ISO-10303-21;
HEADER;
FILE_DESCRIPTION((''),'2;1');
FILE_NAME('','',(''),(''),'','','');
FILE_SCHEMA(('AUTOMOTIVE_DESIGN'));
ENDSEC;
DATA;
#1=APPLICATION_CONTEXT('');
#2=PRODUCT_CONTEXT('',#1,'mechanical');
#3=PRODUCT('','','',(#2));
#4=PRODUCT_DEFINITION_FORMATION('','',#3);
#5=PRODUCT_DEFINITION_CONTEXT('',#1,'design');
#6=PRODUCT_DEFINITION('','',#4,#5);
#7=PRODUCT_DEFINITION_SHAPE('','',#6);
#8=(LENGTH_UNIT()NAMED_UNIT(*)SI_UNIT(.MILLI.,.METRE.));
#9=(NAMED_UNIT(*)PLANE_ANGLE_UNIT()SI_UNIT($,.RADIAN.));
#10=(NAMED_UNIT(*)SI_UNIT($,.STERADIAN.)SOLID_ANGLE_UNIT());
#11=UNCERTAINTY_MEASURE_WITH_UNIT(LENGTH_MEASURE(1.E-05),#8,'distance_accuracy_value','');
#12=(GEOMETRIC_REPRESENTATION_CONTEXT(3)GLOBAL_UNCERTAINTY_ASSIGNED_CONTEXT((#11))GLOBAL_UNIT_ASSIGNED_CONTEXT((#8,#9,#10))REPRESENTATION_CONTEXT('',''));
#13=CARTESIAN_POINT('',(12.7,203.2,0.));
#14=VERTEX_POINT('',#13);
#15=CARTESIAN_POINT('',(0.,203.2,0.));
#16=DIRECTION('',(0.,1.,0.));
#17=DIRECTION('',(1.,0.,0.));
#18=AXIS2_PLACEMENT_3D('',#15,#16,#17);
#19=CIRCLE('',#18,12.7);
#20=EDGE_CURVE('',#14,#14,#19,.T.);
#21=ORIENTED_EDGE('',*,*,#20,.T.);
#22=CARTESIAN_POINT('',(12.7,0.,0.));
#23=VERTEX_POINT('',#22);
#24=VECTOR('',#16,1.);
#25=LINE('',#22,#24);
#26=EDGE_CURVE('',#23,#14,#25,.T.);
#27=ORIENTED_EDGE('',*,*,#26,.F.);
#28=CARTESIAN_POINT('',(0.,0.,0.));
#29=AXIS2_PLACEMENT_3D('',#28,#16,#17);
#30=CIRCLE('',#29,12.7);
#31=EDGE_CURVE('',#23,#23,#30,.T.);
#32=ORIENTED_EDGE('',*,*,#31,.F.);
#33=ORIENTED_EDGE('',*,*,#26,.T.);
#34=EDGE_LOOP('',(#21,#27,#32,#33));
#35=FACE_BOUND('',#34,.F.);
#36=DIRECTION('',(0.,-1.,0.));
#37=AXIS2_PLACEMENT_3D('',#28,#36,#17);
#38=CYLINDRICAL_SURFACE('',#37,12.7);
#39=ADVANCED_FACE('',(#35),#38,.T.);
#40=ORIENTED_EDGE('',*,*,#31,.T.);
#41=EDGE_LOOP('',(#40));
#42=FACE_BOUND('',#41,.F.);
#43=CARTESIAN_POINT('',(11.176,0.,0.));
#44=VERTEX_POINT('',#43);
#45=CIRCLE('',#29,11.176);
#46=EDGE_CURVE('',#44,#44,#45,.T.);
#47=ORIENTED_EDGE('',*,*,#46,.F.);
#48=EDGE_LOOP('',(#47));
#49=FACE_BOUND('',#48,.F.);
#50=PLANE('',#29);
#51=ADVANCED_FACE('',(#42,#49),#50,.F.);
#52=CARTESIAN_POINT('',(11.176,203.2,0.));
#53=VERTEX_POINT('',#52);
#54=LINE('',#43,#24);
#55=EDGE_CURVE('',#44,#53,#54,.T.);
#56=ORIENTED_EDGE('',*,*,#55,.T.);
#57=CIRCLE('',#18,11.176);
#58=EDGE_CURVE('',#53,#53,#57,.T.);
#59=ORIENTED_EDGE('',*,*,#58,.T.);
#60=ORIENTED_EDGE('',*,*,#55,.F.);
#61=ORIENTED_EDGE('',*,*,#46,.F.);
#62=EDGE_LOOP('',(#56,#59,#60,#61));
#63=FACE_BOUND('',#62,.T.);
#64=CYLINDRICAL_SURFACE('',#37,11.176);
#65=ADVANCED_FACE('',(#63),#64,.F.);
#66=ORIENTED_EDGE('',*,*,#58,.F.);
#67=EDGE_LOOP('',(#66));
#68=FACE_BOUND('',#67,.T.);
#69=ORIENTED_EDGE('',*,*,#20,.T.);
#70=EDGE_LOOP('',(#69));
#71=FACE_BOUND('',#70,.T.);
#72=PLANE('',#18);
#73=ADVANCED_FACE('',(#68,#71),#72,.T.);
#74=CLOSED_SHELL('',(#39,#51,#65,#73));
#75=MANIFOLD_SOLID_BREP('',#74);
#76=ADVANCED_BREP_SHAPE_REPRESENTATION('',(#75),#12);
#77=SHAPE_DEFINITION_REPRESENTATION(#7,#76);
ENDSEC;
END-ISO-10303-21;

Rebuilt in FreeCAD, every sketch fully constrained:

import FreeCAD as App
import Part
import Sketcher
Q = App.Units.Quantity

doc = App.newDocument("Part")
body = doc.addObject("PartDesign::Body", "Body")

# Sketch on XZ plane
sketch1 = body.newObject("Sketcher::SketchObject", "Sketch")
sketch1.AttachmentSupport = (doc.getObject("XZ_Plane"), [""])
sketch1.MapMode = "FlatFace"
sketch1.addGeometry([
    Part.Circle(App.Vector(0, 0, 0), App.Vector(0, 0, 1), 13),
    Part.Circle(App.Vector(0, 0, 0), App.Vector(0, 0, 1), 11),
], False)
sketch1.addConstraint([
    Sketcher.Constraint("Coincident", 0, 3, -1, 1),
    Sketcher.Constraint("Coincident", 1, 3, -1, 1),
    Sketcher.Constraint("Diameter", 0, Q("1 in")),
    Sketcher.Constraint("Diameter", 1, Q("0.88 in")),
])
pad1 = body.newObject("PartDesign::Pad", "Pad")
pad1.Profile = sketch1
pad1.Length = Q("8 in")
pad1.Reversed = True

doc.recompute()
